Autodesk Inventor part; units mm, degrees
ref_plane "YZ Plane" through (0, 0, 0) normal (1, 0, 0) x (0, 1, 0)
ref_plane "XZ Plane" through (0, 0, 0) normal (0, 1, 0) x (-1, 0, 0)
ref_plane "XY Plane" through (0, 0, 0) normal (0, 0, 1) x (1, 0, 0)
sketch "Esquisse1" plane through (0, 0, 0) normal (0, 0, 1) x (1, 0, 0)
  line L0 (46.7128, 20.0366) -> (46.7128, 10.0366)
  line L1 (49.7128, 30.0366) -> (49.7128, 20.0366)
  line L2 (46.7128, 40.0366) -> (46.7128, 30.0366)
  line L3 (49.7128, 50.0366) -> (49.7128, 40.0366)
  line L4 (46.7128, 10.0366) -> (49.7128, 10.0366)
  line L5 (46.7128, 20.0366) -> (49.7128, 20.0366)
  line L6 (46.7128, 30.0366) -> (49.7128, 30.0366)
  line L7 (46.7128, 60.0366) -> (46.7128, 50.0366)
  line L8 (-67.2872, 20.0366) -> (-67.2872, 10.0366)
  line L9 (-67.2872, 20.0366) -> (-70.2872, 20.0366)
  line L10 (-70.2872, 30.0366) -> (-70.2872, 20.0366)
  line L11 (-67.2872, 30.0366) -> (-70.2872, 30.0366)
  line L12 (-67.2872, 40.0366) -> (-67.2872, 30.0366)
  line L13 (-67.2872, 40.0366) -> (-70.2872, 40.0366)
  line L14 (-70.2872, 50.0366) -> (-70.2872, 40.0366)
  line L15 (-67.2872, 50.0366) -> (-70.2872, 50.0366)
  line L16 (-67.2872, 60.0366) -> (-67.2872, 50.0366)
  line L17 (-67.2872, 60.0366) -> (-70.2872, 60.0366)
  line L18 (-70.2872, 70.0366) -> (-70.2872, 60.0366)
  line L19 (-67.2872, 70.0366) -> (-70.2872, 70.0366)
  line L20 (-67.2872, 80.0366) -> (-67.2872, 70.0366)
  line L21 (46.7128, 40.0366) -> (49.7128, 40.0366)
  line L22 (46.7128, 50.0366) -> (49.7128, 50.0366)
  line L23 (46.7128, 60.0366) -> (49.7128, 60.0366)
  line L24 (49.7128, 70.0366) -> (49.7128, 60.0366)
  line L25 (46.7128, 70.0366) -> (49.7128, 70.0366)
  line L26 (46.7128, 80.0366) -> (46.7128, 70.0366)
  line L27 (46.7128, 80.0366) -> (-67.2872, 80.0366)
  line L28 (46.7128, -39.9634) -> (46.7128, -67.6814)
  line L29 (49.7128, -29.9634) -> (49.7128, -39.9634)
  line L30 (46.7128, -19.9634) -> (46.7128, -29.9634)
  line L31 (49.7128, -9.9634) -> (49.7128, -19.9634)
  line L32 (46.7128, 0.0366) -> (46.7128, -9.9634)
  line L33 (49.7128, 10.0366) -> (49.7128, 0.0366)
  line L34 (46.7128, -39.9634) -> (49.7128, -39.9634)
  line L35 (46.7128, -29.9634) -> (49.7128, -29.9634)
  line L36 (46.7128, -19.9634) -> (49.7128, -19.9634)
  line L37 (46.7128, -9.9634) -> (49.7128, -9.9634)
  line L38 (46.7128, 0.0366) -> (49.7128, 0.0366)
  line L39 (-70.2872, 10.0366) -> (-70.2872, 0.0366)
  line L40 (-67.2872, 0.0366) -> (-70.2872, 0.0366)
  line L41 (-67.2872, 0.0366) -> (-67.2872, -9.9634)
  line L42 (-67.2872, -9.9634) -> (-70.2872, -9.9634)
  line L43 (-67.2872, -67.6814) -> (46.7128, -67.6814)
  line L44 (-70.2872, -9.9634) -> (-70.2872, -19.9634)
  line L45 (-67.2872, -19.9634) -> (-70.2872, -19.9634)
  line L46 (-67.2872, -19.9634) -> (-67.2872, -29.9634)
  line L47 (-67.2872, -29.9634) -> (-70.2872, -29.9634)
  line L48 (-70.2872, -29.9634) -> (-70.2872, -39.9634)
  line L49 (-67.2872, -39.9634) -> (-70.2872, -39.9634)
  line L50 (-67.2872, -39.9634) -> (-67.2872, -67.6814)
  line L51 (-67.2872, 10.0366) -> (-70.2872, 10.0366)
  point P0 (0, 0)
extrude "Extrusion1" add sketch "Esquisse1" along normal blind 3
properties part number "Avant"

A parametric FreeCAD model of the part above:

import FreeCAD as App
import Part
import Sketcher
Q = App.Units.Quantity


def add_polygon(sketch, points):
    """Adds a closed chain of lines whose ends are joined by coincident constraints."""
    first, n = sketch.GeometryCount, len(points)
    for a, b in zip(points, points[1:] + points[:1]):
        sketch.addGeometry(Part.LineSegment(App.Vector(*a, 0), App.Vector(*b, 0)), False)
    for i in range(n):
        sketch.addConstraint(Sketcher.Constraint("Coincident", first + i, 2, first + (i + 1) % n, 1))

doc = App.newDocument("Part")
body = doc.addObject("PartDesign::Body", "Body")

sketch1 = body.newObject("Sketcher::SketchObject", "Sketch")
sketch1.AttachmentSupport = (doc.getObject("XY_Plane"), [""])
sketch1.MapMode = "FlatFace"
add_polygon(sketch1, [(46.7, 10), (46.7, 20), (49.7, 20), (49.7, 30), (46.7, 30), (46.7, 40), (49.7, 40), (49.7, 50), (46.7, 50), (46.7, 60), (49.7, 60), (49.7, 70), (46.7, 70), (46.7, 80), (-67.3, 80), (-67.3, 70), (-70.3, 70), (-70.3, 60), (-67.3, 60), (-67.3, 50), (-70.3, 50), (-70.3, 40), (-67.3, 40), (-67.3, 30), (-70.3, 30), (-70.3, 20), (-67.3, 20), (-67.3, 10), (-70.3, 10), (-70.3, 0), (-67.3, 0), (-67.3, -10), (-70.3, -10), (-70.3, -20), (-67.3, -20), (-67.3, -30), (-70.3, -30), (-70.3, -40), (-67.3, -40), (-67.3, -67.7), (46.7, -67.7), (46.7, -40), (49.7, -40), (49.7, -30), (46.7, -30), (46.7, -20), (49.7, -20), (49.7, -10), (46.7, -10), (46.7, 0), (49.7, 0), (49.7, 10)])
sketch1.addConstraint([
    Sketcher.Constraint("Vertical", 0),
    Sketcher.Constraint("Horizontal", 1),
    Sketcher.Constraint("Vertical", 2),
    Sketcher.Constraint("Horizontal", 3),
    Sketcher.Constraint("Vertical", 4),
    Sketcher.Constraint("Horizontal", 5),
    Sketcher.Constraint("Vertical", 6),
    Sketcher.Constraint("Horizontal", 7),
    Sketcher.Constraint("Vertical", 8),
    Sketcher.Constraint("Horizontal", 9),
    Sketcher.Constraint("Vertical", 10),
    Sketcher.Constraint("Horizontal", 11),
    Sketcher.Constraint("Vertical", 12),
    Sketcher.Constraint("Horizontal", 13),
    Sketcher.Constraint("Vertical", 14),
    Sketcher.Constraint("Horizontal", 15),
    Sketcher.Constraint("Vertical", 16),
    Sketcher.Constraint("Horizontal", 17),
    Sketcher.Constraint("Vertical", 18),
    Sketcher.Constraint("Horizontal", 19),
    Sketcher.Constraint("Vertical", 20),
    Sketcher.Constraint("Horizontal", 21),
    Sketcher.Constraint("Vertical", 22),
    Sketcher.Constraint("Horizontal", 23),
    Sketcher.Constraint("Vertical", 24),
    Sketcher.Constraint("Horizontal", 25),
    Sketcher.Constraint("Vertical", 26),
    Sketcher.Constraint("Horizontal", 27),
    Sketcher.Constraint("Vertical", 28),
    Sketcher.Constraint("Horizontal", 29),
    Sketcher.Constraint("Vertical", 30),
    Sketcher.Constraint("Horizontal", 31),
    Sketcher.Constraint("Vertical", 32),
    Sketcher.Constraint("Horizontal", 33),
    Sketcher.Constraint("Vertical", 34),
    Sketcher.Constraint("Horizontal", 35),
    Sketcher.Constraint("Vertical", 36),
    Sketcher.Constraint("Horizontal", 37),
    Sketcher.Constraint("Vertical", 38),
    Sketcher.Constraint("Horizontal", 39),
    Sketcher.Constraint("Vertical", 40),
    Sketcher.Constraint("Horizontal", 41),
    Sketcher.Constraint("Vertical", 42),
    Sketcher.Constraint("Horizontal", 43),
    Sketcher.Constraint("Vertical", 44),
    Sketcher.Constraint("Horizontal", 45),
    Sketcher.Constraint("Vertical", 46),
    Sketcher.Constraint("Horizontal", 47),
    Sketcher.Constraint("Vertical", 48),
    Sketcher.Constraint("Horizontal", 49),
    Sketcher.Constraint("Vertical", 50),
    Sketcher.Constraint("Horizontal", 51),
    Sketcher.Constraint("Horizontal", 11, 2, 14, 2),
    Sketcher.Constraint("Horizontal", 9, 2, 16, 2),
    Sketcher.Constraint("Horizontal", 7, 2, 18, 2),
    Sketcher.Constraint("Horizontal", 5, 2, 20, 2),
    Sketcher.Constraint("Horizontal", 3, 2, 22, 2),
    Sketcher.Constraint("Horizontal", 1, 2, 24, 2),
    Sketcher.Constraint("Horizontal", 37, 2, 40, 2),
    Sketcher.Constraint("Horizontal", 35, 2, 42, 2),
    Sketcher.Constraint("Horizontal", 33, 2, 44, 2),
    Sketcher.Constraint("Horizontal", 31, 2, 46, 2),
    Sketcher.Constraint("Horizontal", 29, 2, 48, 2),
    Sketcher.Constraint("Horizontal", 27, 2, 50, 2),
    Sketcher.Constraint("Vertical", 0, 2, 3, 2),
    Sketcher.Constraint("Vertical", 2, 2, 5, 2),
    Sketcher.Constraint("Vertical", 4, 2, 7, 2),
    Sketcher.Constraint("Vertical", 6, 2, 9, 2),
    Sketcher.Constraint("Vertical", 8, 2, 11, 2),
    Sketcher.Constraint("Vertical", 14, 2, 17, 2),
    Sketcher.Constraint("Vertical", 16, 2, 19, 2),
    Sketcher.Constraint("Vertical", 18, 2, 21, 2),
    Sketcher.Constraint("Vertical", 20, 2, 23, 2),
    Sketcher.Constraint("Vertical", 22, 2, 25, 2),
    Sketcher.Constraint("Vertical", 24, 2, 27, 2),
    Sketcher.Constraint("Vertical", 26, 2, 29, 2),
    Sketcher.Constraint("Vertical", 28, 2, 31, 2),
    Sketcher.Constraint("Vertical", 30, 2, 33, 2),
    Sketcher.Constraint("Vertical", 32, 2, 35, 2),
    Sketcher.Constraint("Vertical", 34, 2, 37, 2),
    Sketcher.Constraint("Vertical", 12, 2, 39, 2),
    Sketcher.Constraint("Vertical", 10, 2, 41, 2),
    Sketcher.Constraint("Vertical", 40, 2, 43, 2),
    Sketcher.Constraint("Vertical", 42, 2, 45, 2),
    Sketcher.Constraint("Vertical", 44, 2, 47, 2),
    Sketcher.Constraint("Vertical", 46, 2, 49, 2),
    Sketcher.Constraint("Equal", 11, 15),
    Sketcher.Constraint("Equal", 0, 2),
    Sketcher.Constraint("Equal", 2, 4),
    Sketcher.Constraint("Equal", 4, 6),
    Sketcher.Constraint("Equal", 6, 8),
    Sketcher.Constraint("Equal", 8, 10),
    Sketcher.Constraint("Equal", 10, 12),
    Sketcher.Constraint("Equal", 26, 28),
    Sketcher.Constraint("Equal", 28, 30),
    Sketcher.Constraint("Equal", 30, 32),
    Sketcher.Constraint("Equal", 32, 34),
    Sketcher.Constraint("Equal", 34, 36),
    Sketcher.Constraint("DistanceX", 1, 1, 1, 2, Q("3 mm")),
    Sketcher.Constraint("DistanceX", 13, 2, 13, 1, Q("114 mm")),
    Sketcher.Constraint("DistanceY", 0, 1, 0, 2, Q("10 mm")),
    Sketcher.Constraint("DistanceY", 38, 2, 38, 1, Q("27.718 mm")),
    Sketcher.Constraint("DistanceX", -1, 1, 0, 2, Q("46.7128 mm")),
    Sketcher.Constraint("DistanceY", -1, 1, 0, 2, Q("20.0366 mm")),
])
pad1 = body.newObject("PartDesign::Pad", "Pad")
pad1.Profile = sketch1
pad1.Length = 3

doc.recompute()
